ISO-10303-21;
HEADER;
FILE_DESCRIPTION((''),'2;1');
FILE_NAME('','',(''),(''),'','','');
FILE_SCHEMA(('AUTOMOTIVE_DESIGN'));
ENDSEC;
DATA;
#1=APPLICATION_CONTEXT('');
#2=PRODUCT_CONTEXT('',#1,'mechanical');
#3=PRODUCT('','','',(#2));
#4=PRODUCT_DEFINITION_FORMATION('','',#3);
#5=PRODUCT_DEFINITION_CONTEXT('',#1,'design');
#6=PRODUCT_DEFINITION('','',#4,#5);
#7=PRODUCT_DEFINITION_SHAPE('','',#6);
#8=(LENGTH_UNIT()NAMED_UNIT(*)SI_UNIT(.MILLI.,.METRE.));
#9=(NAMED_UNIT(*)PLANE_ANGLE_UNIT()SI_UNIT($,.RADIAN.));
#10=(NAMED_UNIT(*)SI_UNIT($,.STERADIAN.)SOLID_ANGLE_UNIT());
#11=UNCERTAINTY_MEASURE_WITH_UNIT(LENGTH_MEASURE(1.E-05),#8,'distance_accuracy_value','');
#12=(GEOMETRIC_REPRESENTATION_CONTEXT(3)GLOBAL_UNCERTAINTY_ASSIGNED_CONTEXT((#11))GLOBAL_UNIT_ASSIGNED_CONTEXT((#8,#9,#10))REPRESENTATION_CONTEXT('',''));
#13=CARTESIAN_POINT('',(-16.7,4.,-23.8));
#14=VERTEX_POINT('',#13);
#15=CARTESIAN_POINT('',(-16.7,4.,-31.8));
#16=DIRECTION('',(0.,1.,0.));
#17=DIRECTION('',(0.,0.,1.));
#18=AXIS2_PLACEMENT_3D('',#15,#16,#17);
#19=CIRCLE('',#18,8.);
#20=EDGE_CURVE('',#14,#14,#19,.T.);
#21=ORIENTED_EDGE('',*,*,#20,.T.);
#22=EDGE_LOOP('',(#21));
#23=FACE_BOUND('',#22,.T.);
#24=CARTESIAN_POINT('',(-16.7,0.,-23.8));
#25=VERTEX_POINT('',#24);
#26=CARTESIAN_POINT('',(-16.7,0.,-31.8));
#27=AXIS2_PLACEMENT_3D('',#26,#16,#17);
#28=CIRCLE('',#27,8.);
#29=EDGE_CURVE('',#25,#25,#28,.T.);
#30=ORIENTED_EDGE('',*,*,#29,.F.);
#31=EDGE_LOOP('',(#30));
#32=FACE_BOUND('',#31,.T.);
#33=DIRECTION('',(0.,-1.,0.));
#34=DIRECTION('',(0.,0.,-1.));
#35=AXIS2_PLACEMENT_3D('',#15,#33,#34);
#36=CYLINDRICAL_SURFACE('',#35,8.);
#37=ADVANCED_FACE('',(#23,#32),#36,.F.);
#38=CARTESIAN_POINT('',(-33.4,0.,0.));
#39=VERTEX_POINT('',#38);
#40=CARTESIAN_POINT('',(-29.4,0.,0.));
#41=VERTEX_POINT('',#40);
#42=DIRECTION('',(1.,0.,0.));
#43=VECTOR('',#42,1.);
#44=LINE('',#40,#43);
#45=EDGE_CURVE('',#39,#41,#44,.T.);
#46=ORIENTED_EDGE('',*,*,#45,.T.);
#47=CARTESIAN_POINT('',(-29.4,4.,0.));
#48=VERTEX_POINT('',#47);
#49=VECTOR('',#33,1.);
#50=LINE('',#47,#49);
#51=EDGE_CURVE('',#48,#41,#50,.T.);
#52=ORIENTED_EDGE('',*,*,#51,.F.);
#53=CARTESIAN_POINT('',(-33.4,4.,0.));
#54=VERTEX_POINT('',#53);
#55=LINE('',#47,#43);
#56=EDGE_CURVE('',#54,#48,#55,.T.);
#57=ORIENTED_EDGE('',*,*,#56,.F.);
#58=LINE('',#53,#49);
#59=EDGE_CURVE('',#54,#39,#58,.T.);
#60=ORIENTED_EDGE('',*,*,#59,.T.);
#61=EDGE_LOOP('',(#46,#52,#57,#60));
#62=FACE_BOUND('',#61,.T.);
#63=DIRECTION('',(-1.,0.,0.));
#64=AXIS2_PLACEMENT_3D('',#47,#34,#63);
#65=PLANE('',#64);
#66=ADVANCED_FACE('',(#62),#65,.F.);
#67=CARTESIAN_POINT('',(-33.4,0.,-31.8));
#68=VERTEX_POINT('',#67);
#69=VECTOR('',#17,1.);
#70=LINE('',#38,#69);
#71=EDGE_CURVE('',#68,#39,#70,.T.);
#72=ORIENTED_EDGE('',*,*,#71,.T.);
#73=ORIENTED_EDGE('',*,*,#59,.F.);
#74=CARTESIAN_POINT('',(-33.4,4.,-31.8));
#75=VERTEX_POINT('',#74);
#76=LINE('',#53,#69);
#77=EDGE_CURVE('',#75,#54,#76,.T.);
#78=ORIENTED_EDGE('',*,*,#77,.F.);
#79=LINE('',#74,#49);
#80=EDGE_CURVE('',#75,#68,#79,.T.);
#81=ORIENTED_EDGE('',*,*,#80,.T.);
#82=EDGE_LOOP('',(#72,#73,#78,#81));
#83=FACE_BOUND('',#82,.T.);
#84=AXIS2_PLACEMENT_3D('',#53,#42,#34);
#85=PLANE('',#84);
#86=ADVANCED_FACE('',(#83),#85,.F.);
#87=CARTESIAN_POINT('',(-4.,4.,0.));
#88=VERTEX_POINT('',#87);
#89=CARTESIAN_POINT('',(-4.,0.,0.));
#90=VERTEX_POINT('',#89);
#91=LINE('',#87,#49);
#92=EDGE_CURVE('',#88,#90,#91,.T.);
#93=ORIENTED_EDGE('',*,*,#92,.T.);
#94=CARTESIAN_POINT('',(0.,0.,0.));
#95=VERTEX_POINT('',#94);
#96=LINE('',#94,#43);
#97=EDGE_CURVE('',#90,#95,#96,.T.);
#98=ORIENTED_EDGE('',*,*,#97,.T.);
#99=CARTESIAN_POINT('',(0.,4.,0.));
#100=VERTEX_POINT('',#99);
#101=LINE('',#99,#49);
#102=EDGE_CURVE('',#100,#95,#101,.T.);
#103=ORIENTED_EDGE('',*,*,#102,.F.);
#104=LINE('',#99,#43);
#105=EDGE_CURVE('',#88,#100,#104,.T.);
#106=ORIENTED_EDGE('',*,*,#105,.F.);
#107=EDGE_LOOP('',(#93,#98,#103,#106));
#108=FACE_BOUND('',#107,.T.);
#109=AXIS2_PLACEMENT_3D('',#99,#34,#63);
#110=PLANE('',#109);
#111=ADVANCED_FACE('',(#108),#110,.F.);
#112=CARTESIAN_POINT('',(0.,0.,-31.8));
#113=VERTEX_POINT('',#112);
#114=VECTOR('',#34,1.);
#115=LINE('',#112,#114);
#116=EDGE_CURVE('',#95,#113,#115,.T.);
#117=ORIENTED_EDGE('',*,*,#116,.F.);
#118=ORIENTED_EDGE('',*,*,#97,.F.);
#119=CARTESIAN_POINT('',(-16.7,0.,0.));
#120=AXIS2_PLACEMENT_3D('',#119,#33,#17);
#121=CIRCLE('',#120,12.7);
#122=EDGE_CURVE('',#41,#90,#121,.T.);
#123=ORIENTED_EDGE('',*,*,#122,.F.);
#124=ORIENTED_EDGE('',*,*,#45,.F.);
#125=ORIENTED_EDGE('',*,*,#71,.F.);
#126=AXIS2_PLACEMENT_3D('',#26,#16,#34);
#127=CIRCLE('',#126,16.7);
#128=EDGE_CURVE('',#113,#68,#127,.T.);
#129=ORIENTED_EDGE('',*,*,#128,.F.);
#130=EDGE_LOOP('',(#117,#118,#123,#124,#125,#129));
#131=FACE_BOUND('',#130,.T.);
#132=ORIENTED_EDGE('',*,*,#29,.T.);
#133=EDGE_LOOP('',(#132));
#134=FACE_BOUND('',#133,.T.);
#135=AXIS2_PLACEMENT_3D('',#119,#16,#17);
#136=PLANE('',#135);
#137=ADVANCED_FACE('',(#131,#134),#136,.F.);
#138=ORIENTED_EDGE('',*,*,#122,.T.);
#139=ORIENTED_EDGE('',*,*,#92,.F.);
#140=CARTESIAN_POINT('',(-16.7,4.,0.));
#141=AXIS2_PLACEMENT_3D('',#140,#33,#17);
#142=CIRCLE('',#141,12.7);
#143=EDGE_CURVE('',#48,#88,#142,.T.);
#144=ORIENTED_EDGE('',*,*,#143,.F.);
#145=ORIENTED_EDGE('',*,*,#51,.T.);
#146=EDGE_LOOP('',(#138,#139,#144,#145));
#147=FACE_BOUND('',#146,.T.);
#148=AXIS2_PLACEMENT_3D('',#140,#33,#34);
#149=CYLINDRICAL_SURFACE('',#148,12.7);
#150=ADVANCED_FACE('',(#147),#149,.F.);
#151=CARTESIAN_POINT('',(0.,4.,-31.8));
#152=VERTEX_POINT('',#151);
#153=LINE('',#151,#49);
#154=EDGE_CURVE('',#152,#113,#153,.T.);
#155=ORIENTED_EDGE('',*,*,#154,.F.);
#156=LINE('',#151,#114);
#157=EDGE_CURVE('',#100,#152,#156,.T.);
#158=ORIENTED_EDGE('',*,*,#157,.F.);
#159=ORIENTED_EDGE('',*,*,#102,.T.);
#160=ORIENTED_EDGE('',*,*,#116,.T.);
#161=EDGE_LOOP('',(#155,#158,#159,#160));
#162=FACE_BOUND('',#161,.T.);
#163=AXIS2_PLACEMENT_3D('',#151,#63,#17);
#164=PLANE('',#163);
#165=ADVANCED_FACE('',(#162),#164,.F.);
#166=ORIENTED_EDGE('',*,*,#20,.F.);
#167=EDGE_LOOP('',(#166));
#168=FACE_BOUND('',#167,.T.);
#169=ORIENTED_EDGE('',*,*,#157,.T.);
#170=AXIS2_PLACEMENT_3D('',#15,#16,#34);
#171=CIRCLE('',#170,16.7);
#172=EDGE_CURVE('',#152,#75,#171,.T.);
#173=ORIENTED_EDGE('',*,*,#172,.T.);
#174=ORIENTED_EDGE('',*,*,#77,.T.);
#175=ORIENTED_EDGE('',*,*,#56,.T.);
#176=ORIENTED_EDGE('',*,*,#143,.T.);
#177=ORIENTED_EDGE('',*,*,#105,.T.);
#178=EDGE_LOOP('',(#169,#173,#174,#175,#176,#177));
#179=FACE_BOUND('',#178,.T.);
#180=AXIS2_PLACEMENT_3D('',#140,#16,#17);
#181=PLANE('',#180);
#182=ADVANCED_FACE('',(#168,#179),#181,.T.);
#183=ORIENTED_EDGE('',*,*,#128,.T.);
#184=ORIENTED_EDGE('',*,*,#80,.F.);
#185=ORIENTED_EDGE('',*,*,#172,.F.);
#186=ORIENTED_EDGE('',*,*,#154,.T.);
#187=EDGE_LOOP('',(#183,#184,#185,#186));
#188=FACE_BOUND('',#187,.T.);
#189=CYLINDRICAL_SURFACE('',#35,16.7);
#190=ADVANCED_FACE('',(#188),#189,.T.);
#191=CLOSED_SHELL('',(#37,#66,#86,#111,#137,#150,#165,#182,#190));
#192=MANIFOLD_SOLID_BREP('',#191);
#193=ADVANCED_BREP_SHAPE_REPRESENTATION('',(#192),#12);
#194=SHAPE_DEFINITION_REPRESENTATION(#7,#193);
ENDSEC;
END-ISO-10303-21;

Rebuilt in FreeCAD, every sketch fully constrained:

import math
import FreeCAD as App
import Part
import Sketcher
from FreeCAD import Vector

doc = App.newDocument("Part")
params = doc.addObject("Spreadsheet::Sheet", "Params")
for row, (alias, value) in enumerate([
    ("sketch1_diameter", "16 mm"),
    ("sketch1_radius", "16.7 mm"),
    ("sketch1_radius2", "12.7 mm"),
    ("sketch1_height", "31.8 mm"),
    ("pad1_length", "4 mm"),
], start=1):
    params.set(f"A{row}", alias)
    params.set(f"B{row}", "=" + value)
    params.setAlias(f"B{row}", alias)

body = doc.addObject("PartDesign::Body", "Body")

# Sketch on XZ plane
sketch1 = body.newObject("Sketcher::SketchObject", "Sketch")
sketch1.AttachmentSupport = (doc.getObject("XZ_Plane"), [""])
sketch1.MapMode = "FlatFace"
sketch1.addGeometry([
    Part.LineSegment(Vector(-4, 0, 0), Vector(0, 0, 0)),  # 0
    Part.LineSegment(Vector(0, 0, 0), Vector(0, -31.8, 0)),  # 1
    Part.ArcOfCircle(Part.Circle(Vector(-16.7, -31.8, 0), Vector(0, 0, 1), 16.7), math.radians(180), math.radians(360)),  # 2
    Part.LineSegment(Vector(-33.4, -31.8, 0), Vector(-33.4, 0, 0)),  # 3
    Part.LineSegment(Vector(-33.4, 0, 0), Vector(-29.4, 0, 0)),  # 4
    Part.ArcOfCircle(Part.Circle(Vector(-16.7, 0, 0), Vector(0, 0, 1), 12.7), math.radians(180), math.radians(360)),  # 5
    Part.Circle(Vector(-16.7, -31.8, 0), Vector(0, 0, 1), 8),  # 6
], False)
sketch1.addConstraint([
    Sketcher.Constraint("Coincident", 0, 2, 1, 1),
    Sketcher.Constraint("Tangent", 1, 2, 2, 2),
    Sketcher.Constraint("Tangent", 2, 1, 3, 1),
    Sketcher.Constraint("Coincident", 3, 2, 4, 1),
    Sketcher.Constraint("Coincident", 4, 2, 5, 1),
    Sketcher.Constraint("Coincident", 5, 2, 0, 1),
    Sketcher.Constraint("Horizontal", 0),
    Sketcher.Constraint("Vertical", 1),
    Sketcher.Constraint("Vertical", 3),
    Sketcher.Constraint("Horizontal", 4),
    Sketcher.Constraint("Coincident", 0, 2, -1, 1),
    Sketcher.Constraint("Coincident", 6, 3, 2, 3),
    Sketcher.Constraint("PointOnObject", 5, 3, -1),
    Sketcher.Constraint("PointOnObject", 3, 2, -1),
    Sketcher.Constraint("Vertical", 2, 3, 5, 3),
    Sketcher.Constraint("Diameter", 6, 16.0),
    Sketcher.Constraint("Radius", 2, 16.7),
    Sketcher.Constraint("Radius", 5, 12.7),
    Sketcher.Constraint("DistanceY", 1, 2, 1, 1, 31.8),
])
sketch1.setExpression("Constraints[15]", "Params.sketch1_diameter")
sketch1.setExpression("Constraints[16]", "Params.sketch1_radius")
sketch1.setExpression("Constraints[17]", "Params.sketch1_radius2")
sketch1.setExpression("Constraints[18]", "Params.sketch1_height")
pad1 = body.newObject("PartDesign::Pad", "Pad")
pad1.Profile = sketch1
pad1.setExpression("Length", "Params.pad1_length")
pad1.Reversed = True

doc.recompute()
